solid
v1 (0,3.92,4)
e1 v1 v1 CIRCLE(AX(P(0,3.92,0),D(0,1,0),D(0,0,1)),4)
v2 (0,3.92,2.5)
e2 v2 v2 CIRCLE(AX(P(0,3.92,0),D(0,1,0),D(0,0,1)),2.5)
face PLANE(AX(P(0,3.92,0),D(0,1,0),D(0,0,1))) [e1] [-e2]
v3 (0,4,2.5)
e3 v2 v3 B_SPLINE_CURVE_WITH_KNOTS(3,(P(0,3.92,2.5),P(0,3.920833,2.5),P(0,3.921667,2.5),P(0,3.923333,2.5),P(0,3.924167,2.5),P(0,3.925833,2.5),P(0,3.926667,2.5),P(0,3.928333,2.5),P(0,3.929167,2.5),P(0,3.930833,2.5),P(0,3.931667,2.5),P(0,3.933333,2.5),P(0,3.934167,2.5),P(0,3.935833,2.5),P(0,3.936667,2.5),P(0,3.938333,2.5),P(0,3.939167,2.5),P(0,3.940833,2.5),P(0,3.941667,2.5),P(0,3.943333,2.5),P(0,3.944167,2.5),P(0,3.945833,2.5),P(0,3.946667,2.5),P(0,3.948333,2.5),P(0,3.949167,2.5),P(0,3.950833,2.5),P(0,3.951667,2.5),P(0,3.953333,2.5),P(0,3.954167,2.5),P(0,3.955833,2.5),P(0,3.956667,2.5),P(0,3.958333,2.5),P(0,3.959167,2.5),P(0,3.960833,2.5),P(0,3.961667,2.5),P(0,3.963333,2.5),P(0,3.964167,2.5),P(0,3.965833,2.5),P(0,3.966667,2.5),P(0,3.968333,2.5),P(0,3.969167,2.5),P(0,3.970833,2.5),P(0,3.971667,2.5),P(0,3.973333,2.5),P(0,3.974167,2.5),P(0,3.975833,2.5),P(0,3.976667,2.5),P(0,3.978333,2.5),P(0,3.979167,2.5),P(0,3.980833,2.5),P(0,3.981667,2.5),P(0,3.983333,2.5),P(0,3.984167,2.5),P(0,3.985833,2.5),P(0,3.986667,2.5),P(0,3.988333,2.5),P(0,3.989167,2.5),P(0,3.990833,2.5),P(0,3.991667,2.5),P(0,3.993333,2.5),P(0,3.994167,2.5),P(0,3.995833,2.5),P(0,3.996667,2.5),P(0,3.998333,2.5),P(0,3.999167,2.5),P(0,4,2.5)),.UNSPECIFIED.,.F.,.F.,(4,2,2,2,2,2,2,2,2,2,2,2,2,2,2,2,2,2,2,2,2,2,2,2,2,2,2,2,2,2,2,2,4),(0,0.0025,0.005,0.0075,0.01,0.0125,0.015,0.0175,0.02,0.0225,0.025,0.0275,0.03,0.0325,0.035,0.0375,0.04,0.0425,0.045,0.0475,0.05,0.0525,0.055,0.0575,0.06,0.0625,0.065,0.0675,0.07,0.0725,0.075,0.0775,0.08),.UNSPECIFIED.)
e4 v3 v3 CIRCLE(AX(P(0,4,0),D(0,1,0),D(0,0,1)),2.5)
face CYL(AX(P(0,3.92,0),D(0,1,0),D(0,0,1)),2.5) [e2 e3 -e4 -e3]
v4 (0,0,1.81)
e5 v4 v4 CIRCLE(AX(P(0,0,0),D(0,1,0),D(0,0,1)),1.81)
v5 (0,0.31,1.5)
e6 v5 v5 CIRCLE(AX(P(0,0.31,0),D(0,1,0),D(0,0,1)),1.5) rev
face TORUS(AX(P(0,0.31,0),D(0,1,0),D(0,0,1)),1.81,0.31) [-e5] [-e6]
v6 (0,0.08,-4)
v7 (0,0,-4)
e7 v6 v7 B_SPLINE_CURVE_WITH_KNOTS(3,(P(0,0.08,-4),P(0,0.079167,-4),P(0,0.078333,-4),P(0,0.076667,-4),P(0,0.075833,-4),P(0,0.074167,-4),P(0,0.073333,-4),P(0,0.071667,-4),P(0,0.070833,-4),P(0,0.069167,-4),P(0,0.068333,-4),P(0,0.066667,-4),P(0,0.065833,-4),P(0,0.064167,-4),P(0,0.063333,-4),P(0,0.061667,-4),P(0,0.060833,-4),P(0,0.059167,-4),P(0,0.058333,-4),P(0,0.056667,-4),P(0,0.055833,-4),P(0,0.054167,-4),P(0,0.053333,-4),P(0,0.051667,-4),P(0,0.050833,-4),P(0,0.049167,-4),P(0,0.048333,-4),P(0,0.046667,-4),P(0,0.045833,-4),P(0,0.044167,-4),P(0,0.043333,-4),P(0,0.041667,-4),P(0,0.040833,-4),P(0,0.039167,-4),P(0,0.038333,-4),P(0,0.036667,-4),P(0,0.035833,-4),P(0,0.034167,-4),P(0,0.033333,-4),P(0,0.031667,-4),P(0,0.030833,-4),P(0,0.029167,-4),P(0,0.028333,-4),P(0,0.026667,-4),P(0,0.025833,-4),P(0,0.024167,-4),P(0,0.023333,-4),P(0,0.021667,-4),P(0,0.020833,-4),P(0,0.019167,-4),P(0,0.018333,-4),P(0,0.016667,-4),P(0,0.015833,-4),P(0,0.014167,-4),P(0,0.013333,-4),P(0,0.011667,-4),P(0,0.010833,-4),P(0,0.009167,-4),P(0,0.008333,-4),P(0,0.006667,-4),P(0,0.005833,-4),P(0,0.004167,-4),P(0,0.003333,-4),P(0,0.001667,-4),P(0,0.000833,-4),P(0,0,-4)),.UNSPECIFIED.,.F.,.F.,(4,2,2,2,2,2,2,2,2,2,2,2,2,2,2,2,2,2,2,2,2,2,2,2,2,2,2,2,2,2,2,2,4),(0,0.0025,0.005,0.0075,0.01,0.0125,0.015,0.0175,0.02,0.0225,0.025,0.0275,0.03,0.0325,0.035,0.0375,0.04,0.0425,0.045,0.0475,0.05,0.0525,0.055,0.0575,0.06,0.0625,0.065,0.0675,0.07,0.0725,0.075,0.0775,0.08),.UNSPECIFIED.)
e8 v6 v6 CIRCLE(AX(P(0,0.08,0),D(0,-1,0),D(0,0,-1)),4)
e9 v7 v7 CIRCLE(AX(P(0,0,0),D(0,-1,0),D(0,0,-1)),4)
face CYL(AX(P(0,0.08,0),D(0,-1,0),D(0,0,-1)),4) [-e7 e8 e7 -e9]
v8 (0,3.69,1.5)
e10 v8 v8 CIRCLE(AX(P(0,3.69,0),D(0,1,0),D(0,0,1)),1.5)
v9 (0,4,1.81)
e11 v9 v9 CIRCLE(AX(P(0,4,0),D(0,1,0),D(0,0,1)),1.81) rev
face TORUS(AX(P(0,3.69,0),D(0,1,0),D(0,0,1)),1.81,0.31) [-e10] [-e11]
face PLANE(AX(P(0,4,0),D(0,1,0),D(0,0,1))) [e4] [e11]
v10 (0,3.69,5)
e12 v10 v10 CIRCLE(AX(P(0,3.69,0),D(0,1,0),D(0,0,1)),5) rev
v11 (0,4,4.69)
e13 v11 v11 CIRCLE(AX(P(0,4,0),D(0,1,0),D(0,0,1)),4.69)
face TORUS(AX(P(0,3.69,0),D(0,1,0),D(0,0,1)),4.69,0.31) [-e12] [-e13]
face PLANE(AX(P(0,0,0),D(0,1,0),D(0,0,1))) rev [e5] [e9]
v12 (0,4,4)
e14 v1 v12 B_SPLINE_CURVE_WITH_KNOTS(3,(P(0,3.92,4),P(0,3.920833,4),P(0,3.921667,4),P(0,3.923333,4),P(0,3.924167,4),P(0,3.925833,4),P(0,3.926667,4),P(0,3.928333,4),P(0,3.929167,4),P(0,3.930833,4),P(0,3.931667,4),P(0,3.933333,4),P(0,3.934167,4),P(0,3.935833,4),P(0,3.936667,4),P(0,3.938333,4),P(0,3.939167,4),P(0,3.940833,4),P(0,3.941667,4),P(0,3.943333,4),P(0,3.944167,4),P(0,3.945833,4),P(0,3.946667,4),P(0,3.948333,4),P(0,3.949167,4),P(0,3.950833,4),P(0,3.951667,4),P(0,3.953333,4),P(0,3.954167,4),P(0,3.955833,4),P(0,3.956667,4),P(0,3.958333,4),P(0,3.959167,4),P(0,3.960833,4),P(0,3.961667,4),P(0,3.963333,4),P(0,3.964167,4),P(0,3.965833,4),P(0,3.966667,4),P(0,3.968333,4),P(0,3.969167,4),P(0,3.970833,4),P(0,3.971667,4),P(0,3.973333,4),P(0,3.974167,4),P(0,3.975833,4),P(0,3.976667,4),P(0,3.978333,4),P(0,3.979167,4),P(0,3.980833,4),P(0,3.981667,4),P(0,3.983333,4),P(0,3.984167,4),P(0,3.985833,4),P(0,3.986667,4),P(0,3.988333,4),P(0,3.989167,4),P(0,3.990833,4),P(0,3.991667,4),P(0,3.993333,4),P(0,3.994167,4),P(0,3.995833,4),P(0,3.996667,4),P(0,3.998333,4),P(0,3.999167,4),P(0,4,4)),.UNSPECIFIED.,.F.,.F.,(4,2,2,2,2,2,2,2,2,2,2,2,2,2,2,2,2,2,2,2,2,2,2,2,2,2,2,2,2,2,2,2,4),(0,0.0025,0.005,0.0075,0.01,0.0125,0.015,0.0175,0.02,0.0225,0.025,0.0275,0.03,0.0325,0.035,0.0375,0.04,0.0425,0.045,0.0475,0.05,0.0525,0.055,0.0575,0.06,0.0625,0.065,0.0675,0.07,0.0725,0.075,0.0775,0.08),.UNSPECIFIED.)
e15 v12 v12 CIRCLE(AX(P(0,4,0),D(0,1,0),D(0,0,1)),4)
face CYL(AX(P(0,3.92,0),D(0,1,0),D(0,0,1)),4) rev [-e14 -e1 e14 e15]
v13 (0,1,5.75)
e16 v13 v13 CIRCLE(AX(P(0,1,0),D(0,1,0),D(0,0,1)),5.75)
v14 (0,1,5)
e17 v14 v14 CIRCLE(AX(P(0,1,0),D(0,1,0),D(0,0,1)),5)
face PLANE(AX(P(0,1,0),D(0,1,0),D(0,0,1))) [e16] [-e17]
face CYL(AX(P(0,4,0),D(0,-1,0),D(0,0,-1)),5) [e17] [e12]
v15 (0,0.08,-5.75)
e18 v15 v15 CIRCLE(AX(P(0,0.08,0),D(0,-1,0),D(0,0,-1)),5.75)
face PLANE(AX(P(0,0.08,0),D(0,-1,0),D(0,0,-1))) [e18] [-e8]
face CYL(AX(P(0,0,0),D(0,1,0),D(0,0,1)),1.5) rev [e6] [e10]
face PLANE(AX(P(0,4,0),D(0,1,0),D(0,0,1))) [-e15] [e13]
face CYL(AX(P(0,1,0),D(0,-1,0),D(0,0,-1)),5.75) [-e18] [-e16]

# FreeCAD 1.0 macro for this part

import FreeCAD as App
import Part
import Sketcher
Q = App.Units.Quantity


def edges_at(feature, points):
    """Names of the edges that pass closest to the given points."""
    edges = feature.Shape.Edges
    near = lambda p: min(range(len(edges)), key=lambda i: edges[i].distToShape(Part.Vertex(*p))[0])
    return sorted({f"Edge{near(p) + 1}" for p in points})

doc = App.newDocument("Part")
params = doc.addObject("Spreadsheet::Sheet", "Params")
for row, (alias, value) in enumerate([
    ("sketch1_diameter", "11.5 mm"),
    ("pad1_length", "1 mm"),
    ("sketch2_diameter", "10 mm"),
    ("pad2_length", "3 mm"),
    ("sketch3_diameter", "3 mm"),
    ("sketch4_diameter", "1524 mm"),
    ("sketch4_diameter2", "8 mm"),
    ("pocket2_length", "0.08 mm"),
    ("sketch5_diameter", "8 mm"),
    ("sketch5_diameter2", "5 mm"),
    ("pocket3_length", "0.08 mm"),
    ("fillet_radius", "0.31 mm"),
], start=1):
    params.set(f"A{row}", alias)
    params.set(f"B{row}", "=" + value)
    params.setAlias(f"B{row}", alias)

body = doc.addObject("PartDesign::Body", "Body")

# Sketch on XZ plane
sketch1 = body.newObject("Sketcher::SketchObject", "Sketch")
sketch1.AttachmentSupport = (doc.getObject("XZ_Plane"), [""])
sketch1.MapMode = "FlatFace"
sketch1.addGeometry(Part.Circle(App.Vector(0, 0, 0), App.Vector(0, 0, 1), 6), False)
sketch1.addConstraint([
    Sketcher.Constraint("Coincident", 0, 3, -1, 1),
    Sketcher.Constraint("Diameter", 0, Q("11.5 mm")),
])
sketch1.setExpression("Constraints[1]", "Params.sketch1_diameter")
pad1 = body.newObject("PartDesign::Pad", "Pad")
pad1.Profile = sketch1
pad1.setExpression("Length", "Params.pad1_length")
pad1.Reversed = True

# Sketch on XZ plane
sketch2 = body.newObject("Sketcher::SketchObject", "Sketch001")
sketch2.AttachmentSupport = (doc.getObject("XZ_Plane"), [""])
sketch2.MapMode = "FlatFace"
sketch2.AttachmentOffset = App.Placement(App.Vector(0, 0, -1), App.Rotation())
sketch2.addGeometry(Part.Circle(App.Vector(0, 0, 0), App.Vector(0, 0, 1), 5), False)
sketch2.addConstraint([
    Sketcher.Constraint("Coincident", 0, 3, -1, 1),
    Sketcher.Constraint("Diameter", 0, Q("10 mm")),
])
sketch2.setExpression("Constraints[1]", "Params.sketch2_diameter")
pad2 = body.newObject("PartDesign::Pad", "Pad001")
pad2.Profile = sketch2
pad2.setExpression("Length", "Params.pad2_length")
pad2.Reversed = True

# Sketch on XZ plane
sketch3 = body.newObject("Sketcher::SketchObject", "Sketch002")
sketch3.AttachmentSupport = (doc.getObject("XZ_Plane"), [""])
sketch3.MapMode = "FlatFace"
sketch3.AttachmentOffset = App.Placement(App.Vector(0, 0, -4), App.Rotation())
sketch3.addGeometry(Part.Circle(App.Vector(0, 0, 0), App.Vector(0, 0, 1), 1.5), False)
sketch3.addConstraint([
    Sketcher.Constraint("Coincident", 0, 3, -1, 1),
    Sketcher.Constraint("Diameter", 0, Q("3 mm")),
])
sketch3.setExpression("Constraints[1]", "Params.sketch3_diameter")
pocket1 = body.newObject("PartDesign::Pocket", "Pocket")
pocket1.Profile = sketch3
pocket1.Type = "ThroughAll"
pocket1.Reversed = True

# Sketch on XZ plane
sketch4 = body.newObject("Sketcher::SketchObject", "Sketch003")
sketch4.AttachmentSupport = (doc.getObject("XZ_Plane"), [""])
sketch4.MapMode = "FlatFace"
sketch4.addGeometry([
    Part.Circle(App.Vector(0, 0, 0), App.Vector(0, 0, 1), 762),
    Part.Circle(App.Vector(0, 0, 0), App.Vector(0, 0, 1), 4),
], False)
sketch4.addConstraint([
    Sketcher.Constraint("Coincident", 0, 3, -1, 1),
    Sketcher.Constraint("Coincident", 1, 3, -1, 1),
    Sketcher.Constraint("Diameter", 0, Q("1524 mm")),
    Sketcher.Constraint("Diameter", 1, Q("8 mm")),
])
sketch4.setExpression("Constraints[2]", "Params.sketch4_diameter")
sketch4.setExpression("Constraints[3]", "Params.sketch4_diameter2")
pocket2 = body.newObject("PartDesign::Pocket", "Pocket001")
pocket2.Profile = sketch4
pocket2.setExpression("Length", "Params.pocket2_length")

# Sketch on XZ plane
sketch5 = body.newObject("Sketcher::SketchObject", "Sketch004")
sketch5.AttachmentSupport = (doc.getObject("XZ_Plane"), [""])
sketch5.MapMode = "FlatFace"
sketch5.AttachmentOffset = App.Placement(App.Vector(0, 0, -3.92), App.Rotation())
sketch5.addGeometry([
    Part.Circle(App.Vector(0, 0, 0), App.Vector(0, 0, 1), 4),
    Part.Circle(App.Vector(0, 0, 0), App.Vector(0, 0, 1), 2.5),
], False)
sketch5.addConstraint([
    Sketcher.Constraint("Coincident", 0, 3, -1, 1),
    Sketcher.Constraint("Coincident", 1, 3, -1, 1),
    Sketcher.Constraint("Diameter", 0, Q("8 mm")),
    Sketcher.Constraint("Diameter", 1, Q("5 mm")),
])
sketch5.setExpression("Constraints[2]", "Params.sketch5_diameter")
sketch5.setExpression("Constraints[3]", "Params.sketch5_diameter2")
pocket3 = body.newObject("PartDesign::Pocket", "Pocket002")
pocket3.Profile = sketch5
pocket3.setExpression("Length", "Params.pocket3_length")
doc.recompute()

fillet = body.newObject("PartDesign::Fillet", "Fillet")
fillet.Base = (pocket3, edges_at(pocket3, [(0, 0, -1.5), (0, 4, -1.5), (0, 4, -5)]))
fillet.setExpression("Radius", "Params.fillet_radius")

doc.recompute()
